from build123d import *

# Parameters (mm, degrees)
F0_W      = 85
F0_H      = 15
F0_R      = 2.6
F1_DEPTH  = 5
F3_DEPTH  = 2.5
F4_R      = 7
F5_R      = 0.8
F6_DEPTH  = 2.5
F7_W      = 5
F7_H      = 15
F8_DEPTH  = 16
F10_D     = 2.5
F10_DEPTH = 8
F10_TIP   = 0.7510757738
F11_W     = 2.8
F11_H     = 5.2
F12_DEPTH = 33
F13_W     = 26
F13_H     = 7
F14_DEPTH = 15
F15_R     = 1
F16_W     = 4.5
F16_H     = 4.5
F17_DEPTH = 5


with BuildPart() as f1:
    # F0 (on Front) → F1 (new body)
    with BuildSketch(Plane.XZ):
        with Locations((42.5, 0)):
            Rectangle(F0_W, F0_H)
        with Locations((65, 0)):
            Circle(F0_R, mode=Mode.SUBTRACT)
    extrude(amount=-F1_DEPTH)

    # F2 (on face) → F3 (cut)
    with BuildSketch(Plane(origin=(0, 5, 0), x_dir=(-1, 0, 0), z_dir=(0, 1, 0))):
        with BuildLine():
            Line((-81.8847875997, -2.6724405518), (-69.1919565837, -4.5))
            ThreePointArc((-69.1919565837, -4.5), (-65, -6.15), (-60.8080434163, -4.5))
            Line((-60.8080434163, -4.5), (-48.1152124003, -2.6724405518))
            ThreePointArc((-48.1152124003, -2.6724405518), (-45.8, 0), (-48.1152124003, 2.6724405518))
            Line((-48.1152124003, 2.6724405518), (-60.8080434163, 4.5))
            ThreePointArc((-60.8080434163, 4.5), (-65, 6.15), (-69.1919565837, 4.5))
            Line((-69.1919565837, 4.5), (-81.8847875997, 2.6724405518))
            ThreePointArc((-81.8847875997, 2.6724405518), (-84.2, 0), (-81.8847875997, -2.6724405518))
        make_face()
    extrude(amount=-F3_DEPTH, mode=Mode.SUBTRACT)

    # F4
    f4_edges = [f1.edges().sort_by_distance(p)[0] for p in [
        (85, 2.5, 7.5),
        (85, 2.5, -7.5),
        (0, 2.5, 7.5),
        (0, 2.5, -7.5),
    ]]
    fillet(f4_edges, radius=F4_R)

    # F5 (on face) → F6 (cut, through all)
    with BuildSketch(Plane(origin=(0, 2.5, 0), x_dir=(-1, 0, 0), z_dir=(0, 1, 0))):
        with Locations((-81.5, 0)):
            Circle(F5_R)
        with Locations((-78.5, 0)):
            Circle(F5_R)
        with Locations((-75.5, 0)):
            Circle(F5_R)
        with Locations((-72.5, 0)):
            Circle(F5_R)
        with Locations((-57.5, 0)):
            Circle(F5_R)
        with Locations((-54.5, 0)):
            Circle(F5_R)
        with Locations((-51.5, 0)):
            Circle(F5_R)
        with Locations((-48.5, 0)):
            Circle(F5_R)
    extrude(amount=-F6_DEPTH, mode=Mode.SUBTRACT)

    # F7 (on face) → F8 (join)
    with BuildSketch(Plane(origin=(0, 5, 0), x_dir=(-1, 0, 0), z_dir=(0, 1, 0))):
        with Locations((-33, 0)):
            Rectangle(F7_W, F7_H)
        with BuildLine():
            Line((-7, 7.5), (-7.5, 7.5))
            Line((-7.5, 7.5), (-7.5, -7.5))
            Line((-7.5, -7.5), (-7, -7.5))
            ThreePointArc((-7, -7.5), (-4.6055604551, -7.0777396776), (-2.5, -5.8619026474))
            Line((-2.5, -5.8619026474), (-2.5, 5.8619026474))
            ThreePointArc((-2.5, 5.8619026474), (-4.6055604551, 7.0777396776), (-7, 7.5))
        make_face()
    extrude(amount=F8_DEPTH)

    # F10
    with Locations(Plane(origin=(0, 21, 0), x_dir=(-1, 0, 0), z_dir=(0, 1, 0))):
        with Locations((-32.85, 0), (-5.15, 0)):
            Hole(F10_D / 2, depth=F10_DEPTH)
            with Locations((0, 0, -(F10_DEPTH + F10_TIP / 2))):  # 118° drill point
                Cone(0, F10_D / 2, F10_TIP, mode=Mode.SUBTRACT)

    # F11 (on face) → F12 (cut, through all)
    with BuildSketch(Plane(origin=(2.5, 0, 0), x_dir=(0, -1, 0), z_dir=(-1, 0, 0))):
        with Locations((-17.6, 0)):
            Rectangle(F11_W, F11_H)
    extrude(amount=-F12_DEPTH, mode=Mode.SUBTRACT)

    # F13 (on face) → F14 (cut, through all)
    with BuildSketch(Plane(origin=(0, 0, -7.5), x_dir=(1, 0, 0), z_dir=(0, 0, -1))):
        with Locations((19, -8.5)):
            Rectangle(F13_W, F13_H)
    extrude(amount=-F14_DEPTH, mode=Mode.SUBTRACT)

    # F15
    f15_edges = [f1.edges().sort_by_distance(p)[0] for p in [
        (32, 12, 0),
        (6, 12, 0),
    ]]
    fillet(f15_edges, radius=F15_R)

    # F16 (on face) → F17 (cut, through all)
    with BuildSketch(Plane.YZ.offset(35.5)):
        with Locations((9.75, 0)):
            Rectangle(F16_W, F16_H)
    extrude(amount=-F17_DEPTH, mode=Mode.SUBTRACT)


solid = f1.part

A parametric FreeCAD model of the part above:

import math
import FreeCAD as App
import Part
import Sketcher
from FreeCAD import Vector


def edges_at(feature, points):
    """Names of the edges that pass closest to the given points."""
    edges = feature.Shape.Edges
    near = lambda p: min(range(len(edges)), key=lambda i: edges[i].distToShape(Part.Vertex(*p))[0])
    return sorted({f"Edge{near(p) + 1}" for p in points})


def add_polygon(sketch, points):
    """Adds a closed chain of lines whose ends are joined by coincident constraints."""
    first, n = sketch.GeometryCount, len(points)
    for a, b in zip(points, points[1:] + points[:1]):
        sketch.addGeometry(Part.LineSegment(App.Vector(*a, 0), App.Vector(*b, 0)), False)
    for i in range(n):
        sketch.addConstraint(Sketcher.Constraint("Coincident", first + i, 2, first + (i + 1) % n, 1))

doc = App.newDocument("Part")
body = doc.addObject("PartDesign::Body", "Body")

sketch1 = body.newObject("Sketcher::SketchObject", "Sketch")
sketch1.AttachmentSupport = (doc.getObject("XZ_Plane"), [""])
sketch1.MapMode = "FlatFace"
add_polygon(sketch1, [(0, 7.5), (0, -7.5), (85, -7.5), (85, 7.5)])
sketch1.addGeometry(Part.Circle(Vector(65, 0, 0), Vector(0, 0, 1), 2.6), False)
sketch1.addConstraint([
    Sketcher.Constraint("Vertical", 0),
    Sketcher.Constraint("Horizontal", 1),
    Sketcher.Constraint("Vertical", 2),
    Sketcher.Constraint("Horizontal", 3),
    Sketcher.Constraint("Symmetric", 0, 2, 3, 2, -1, 1),
    Sketcher.Constraint("PointOnObject", 4, 3, -1),
    Sketcher.Constraint("Diameter", 4, 5.2),
    Sketcher.Constraint("DistanceX", 1, 1, 1, 2, 85.0),
    Sketcher.Constraint("DistanceY", 0, 2, 0, 1, 15.0),
    Sketcher.Constraint("DistanceX", -1, 1, 4, 3, 65.0),
])
pad1 = body.newObject("PartDesign::Pad", "Pad")
pad1.Profile = sketch1
pad1.Length = 5
pad1.Reversed = True

sketch2 = body.newObject("Sketcher::SketchObject", "Sketch001")
sketch2.AttachmentSupport = (doc.getObject("XZ_Plane"), [""])
sketch2.MapMode = "FlatFace"
sketch2.AttachmentOffset = App.Placement(Vector(0, 0, -5), App.Rotation())
sketch2.addGeometry([
    Part.LineSegment(Vector(81.884788, -2.672441, 0), Vector(69.191957, -4.5, 0)),
    Part.ArcOfCircle(Part.Circle(Vector(65, 0, 0), Vector(0, 0, 1), 6.15), math.radians(-132.970284), math.radians(-47.029716)),
    Part.LineSegment(Vector(60.808043, -4.5, 0), Vector(48.115212, -2.672441, 0)),
    Part.ArcOfCircle(Part.Circle(Vector(48.5, 0, 0), Vector(0, 0, 1), 2.7), math.radians(98.193343), math.radians(261.806657)),
    Part.LineSegment(Vector(48.115212, 2.672441, 0), Vector(60.808043, 4.5, 0)),
    Part.ArcOfCircle(Part.Circle(Vector(65, 0, 0), Vector(0, 0, 1), 6.15), math.radians(47.029716), math.radians(132.970284)),
    Part.LineSegment(Vector(69.191957, 4.5, 0), Vector(81.884788, 2.672441, 0)),
    Part.ArcOfCircle(Part.Circle(Vector(81.5, 0, 0), Vector(0, 0, 1), 2.7), math.radians(-81.806657), math.radians(81.806657)),
], False)
sketch2.addConstraint([
    Sketcher.Constraint("Coincident", 0, 2, 1, 2),
    Sketcher.Constraint("Coincident", 1, 1, 2, 1),
    Sketcher.Constraint("Tangent", 2, 2, 3, 2),
    Sketcher.Constraint("Tangent", 3, 1, 4, 1),
    Sketcher.Constraint("Coincident", 4, 2, 5, 2),
    Sketcher.Constraint("Coincident", 5, 1, 6, 1),
    Sketcher.Constraint("Tangent", 6, 2, 7, 2),
    Sketcher.Constraint("Tangent", 7, 1, 0, 1),
    Sketcher.Constraint("Coincident", 5, 3, 1, 3),
    Sketcher.Constraint("Equal", 1, 5),
    Sketcher.Constraint("Equal", 3, 7),
    Sketcher.Constraint("Symmetric", 2, 2, 3, 1, -1),
    Sketcher.Constraint("Symmetric", 0, 2, 5, 1, -1),
    Sketcher.Constraint("PointOnObject", 7, 3, -1),
    Sketcher.Constraint("Parallel", 0, 4),
    Sketcher.Constraint("Horizontal", 0, 2, 1, 1),
    Sketcher.Constraint("Radius", 3, 2.7),
    Sketcher.Constraint("Radius", 1, 6.15),
    Sketcher.Constraint("DistanceX", -1, 1, 1, 3, 65.0),
    Sketcher.Constraint("DistanceX", 3, 3, 7, 3, 33.0),
    Sketcher.Constraint("DistanceY", 1, 1, 4, 2, 9.0),
])
pocket1 = body.newObject("PartDesign::Pocket", "Pocket")
pocket1.Profile = sketch2
pocket1.Length = 2.5
pocket1.Reversed = True
doc.recompute()

fillet = body.newObject("PartDesign::Fillet", "Fillet")
fillet.Base = (pocket1, edges_at(pocket1, [
    (85, 2.5, 7.5),
    (85, 2.5, -7.5),
    (0, 2.5, 7.5),
    (0, 2.5, -7.5),
]))
fillet.Radius = 7

sketch3 = body.newObject("Sketcher::SketchObject", "Sketch002")
sketch3.AttachmentSupport = (doc.getObject("XZ_Plane"), [""])
sketch3.MapMode = "FlatFace"
sketch3.AttachmentOffset = App.Placement(Vector(0, 0, -2.5), App.Rotation())
sketch3.addGeometry([
    Part.Circle(Vector(81.5, 0, 0), Vector(0, 0, 1), 0.8),
    Part.Circle(Vector(78.5, 0, 0), Vector(0, 0, 1), 0.8),
    Part.Circle(Vector(75.5, 0, 0), Vector(0, 0, 1), 0.8),
    Part.Circle(Vector(72.5, 0, 0), Vector(0, 0, 1), 0.8),
    Part.Circle(Vector(57.5, 0, 0), Vector(0, 0, 1), 0.8),
    Part.Circle(Vector(54.5, 0, 0), Vector(0, 0, 1), 0.8),
    Part.Circle(Vector(51.5, 0, 0), Vector(0, 0, 1), 0.8),
    Part.Circle(Vector(48.5, 0, 0), Vector(0, 0, 1), 0.8),
], False)
sketch3.addConstraint([
    Sketcher.Constraint("Equal", 0, 1),
    Sketcher.Constraint("Equal", 1, 2),
    Sketcher.Constraint("Equal", 2, 3),
    Sketcher.Constraint("Equal", 3, 4),
    Sketcher.Constraint("Equal", 4, 5),
    Sketcher.Constraint("Equal", 5, 6),
    Sketcher.Constraint("Equal", 6, 7),
    Sketcher.Constraint("PointOnObject", 0, 3, -1),
    Sketcher.Constraint("PointOnObject", 1, 3, -1),
    Sketcher.Constraint("PointOnObject", 2, 3, -1),
    Sketcher.Constraint("PointOnObject", 3, 3, -1),
    Sketcher.Constraint("PointOnObject", 4, 3, -1),
    Sketcher.Constraint("PointOnObject", 5, 3, -1),
    Sketcher.Constraint("PointOnObject", 6, 3, -1),
    Sketcher.Constraint("PointOnObject", 7, 3, -1),
    Sketcher.Constraint("Diameter", 0, 1.6),
    Sketcher.Constraint("DistanceX", 1, 3, 0, 3, 3.0),
    Sketcher.Constraint("DistanceX", 2, 3, 1, 3, 3.0),
    Sketcher.Constraint("DistanceX", 3, 3, 2, 3, 3.0),
    Sketcher.Constraint("DistanceX", 4, 3, 3, 3, 15.0),
    Sketcher.Constraint("DistanceX", 5, 3, 4, 3, 3.0),
    Sketcher.Constraint("DistanceX", 6, 3, 5, 3, 3.0),
    Sketcher.Constraint("DistanceX", 7, 3, 6, 3, 3.0),
    Sketcher.Constraint("DistanceX", -1, 1, 0, 3, 81.5),
])
pocket2 = body.newObject("PartDesign::Pocket", "Pocket001")
pocket2.Profile = sketch3
pocket2.Type = "ThroughAll"
pocket2.Reversed = True

sketch4 = body.newObject("Sketcher::SketchObject", "Sketch003")
sketch4.AttachmentSupport = (doc.getObject("XZ_Plane"), [""])
sketch4.MapMode = "FlatFace"
sketch4.AttachmentOffset = App.Placement(Vector(0, 0, -5), App.Rotation())
add_polygon(sketch4, [(35.5, 7.5), (35.5, -7.5), (30.5, -7.5), (30.5, 7.5)])
sketch4.addGeometry(Part.LineSegment(Vector(7, 7.5, 0), Vector(7.5, 7.5, 0)), False)
sketch4.addGeometry(Part.LineSegment(Vector(7.5, 7.5, 0), Vector(7.5, -7.5, 0)), False)
sketch4.addGeometry(Part.LineSegment(Vector(7.5, -7.5, 0), Vector(7, -7.5, 0)), False)
sketch4.addGeometry(Part.ArcOfCircle(Part.Circle(Vector(7, -0.5, 0), Vector(0, 0, 1), 7), math.radians(-130.005201), math.radians(-90)), False)
sketch4.addGeometry(Part.LineSegment(Vector(2.5, -5.861903, 0), Vector(2.5, 5.861903, 0)), False)
sketch4.addGeometry(Part.ArcOfCircle(Part.Circle(Vector(7, 0.5, 0), Vector(0, 0, 1), 7), math.radians(90), math.radians(130.005201)), False)
sketch4.addConstraint([
    Sketcher.Constraint("Coincident", 4, 2, 5, 1),
    Sketcher.Constraint("Coincident", 5, 2, 6, 1),
    Sketcher.Constraint("Tangent", 6, 2, 7, 2),
    Sketcher.Constraint("Coincident", 7, 1, 8, 1),
    Sketcher.Constraint("Coincident", 8, 2, 9, 2),
    Sketcher.Constraint("Tangent", 9, 1, 4, 1),
    Sketcher.Constraint("Vertical", 0),
    Sketcher.Constraint("Horizontal", 1),
    Sketcher.Constraint("Vertical", 2),
    Sketcher.Constraint("Horizontal", 3),
    Sketcher.Constraint("Horizontal", 4),
    Sketcher.Constraint("Vertical", 5),
    Sketcher.Constraint("Horizontal", 6),
    Sketcher.Constraint("Vertical", 8),
    Sketcher.Constraint("Equal", 7, 9),
    Sketcher.Constraint("Symmetric", 7, 3, 9, 3, -1),
    Sketcher.Constraint("Horizontal", 3, 2, 4, 2),
    Sketcher.Constraint("Horizontal", 1, 2, 5, 2),
    Sketcher.Constraint("Radius", 7, 7.0),
    Sketcher.Constraint("DistanceX", 1, 2, 1, 1, 5.0),
    Sketcher.Constraint("DistanceY", 0, 2, 0, 1, 15.0),
    Sketcher.Constraint("DistanceX", 4, 1, 4, 2, 0.5),
    Sketcher.Constraint("DistanceX", -1, 1, 7, 3, 7.0),
    Sketcher.Constraint("DistanceX", 4, 2, 2, 2, 23.0),
    Sketcher.Constraint("DistanceX", 7, 1, 5, 2, 5.0),
])
pad2 = body.newObject("PartDesign::Pad", "Pad001")
pad2.Profile = sketch4
pad2.Length = 16
pad2.Reversed = True

sketch5 = body.newObject("Sketcher::SketchObject", "Sketch004")
sketch5.AttachmentSupport = (doc.getObject("XZ_Plane"), [""])
sketch5.MapMode = "FlatFace"
sketch5.AttachmentOffset = App.Placement(Vector(0, 0, -21), App.Rotation())
sketch5.addGeometry([
    Part.Circle(Vector(32.85, 0, 0), Vector(0, 0, 1), 1.25),
    Part.Circle(Vector(5.15, 0, 0), Vector(0, 0, 1), 1.25),
], False)
sketch5.addConstraint([
    Sketcher.Constraint("Equal", 0, 1),
    Sketcher.Constraint("PointOnObject", 0, 3, -1),
    Sketcher.Constraint("PointOnObject", 1, 3, -1),
    Sketcher.Constraint("Diameter", 0, 2.5),
    Sketcher.Constraint("DistanceX", 1, 3, 0, 3, 27.7),
    Sketcher.Constraint("DistanceX", -1, 1, 0, 3, 32.85),
])
doc.recompute()
hole = body.newObject("PartDesign::Hole", "Hole")
hole.Profile = sketch5
hole.ThreadType = "None"
hole.Diameter = 2.5
hole.DepthType = "Dimension"
hole.Depth = 8
hole.DrillPoint = "Angled"
hole.DrillPointAngle = 118
hole.Reversed = True

sketch6 = body.newObject("Sketcher::SketchObject", "Sketch005")
sketch6.AttachmentSupport = (doc.getObject("YZ_Plane"), [""])
sketch6.MapMode = "FlatFace"
sketch6.AttachmentOffset = App.Placement(Vector(0, 0, 2.5), App.Rotation())
add_polygon(sketch6, [(19, 2.6), (19, -2.6), (16.2, -2.6), (16.2, 2.6)])
sketch6.addConstraint([
    Sketcher.Constraint("Vertical", 0),
    Sketcher.Constraint("Horizontal", 1),
    Sketcher.Constraint("Vertical", 2),
    Sketcher.Constraint("Horizontal", 3),
    Sketcher.Constraint("DistanceX", 1, 2, 1, 1, 2.8),
    Sketcher.Constraint("DistanceY", 0, 2, 0, 1, 5.2),
    Sketcher.Constraint("DistanceX", -1, 1, 0, 2, 19.0),
    Sketcher.Constraint("DistanceY", 0, 2, -1, 1, 2.6),
])
pocket3 = body.newObject("PartDesign::Pocket", "Pocket002")
pocket3.Profile = sketch6
pocket3.Type = "ThroughAll"
pocket3.Reversed = True

sketch7 = body.newObject("Sketcher::SketchObject", "Sketch006")
sketch7.AttachmentSupport = (doc.getObject("XY_Plane"), [""])
sketch7.MapMode = "FlatFace"
sketch7.AttachmentOffset = App.Placement(Vector(0, 0, -7.5), App.Rotation())
add_polygon(sketch7, [(6, 5), (6, 12), (32, 12), (32, 5)])
sketch7.addConstraint([
    Sketcher.Constraint("Vertical", 0),
    Sketcher.Constraint("Horizontal", 1),
    Sketcher.Constraint("Vertical", 2),
    Sketcher.Constraint("Horizontal", 3),
    Sketcher.Constraint("DistanceX", 1, 1, 1, 2, 26.0),
    Sketcher.Constraint("DistanceY", 0, 1, 0, 2, 7.0),
    Sketcher.Constraint("DistanceX", -1, 1, 0, 2, 6.0),
    Sketcher.Constraint("DistanceY", -1, 1, 0, 2, 12.0),
])
pocket4 = body.newObject("PartDesign::Pocket", "Pocket003")
pocket4.Profile = sketch7
pocket4.Type = "ThroughAll"
pocket4.Reversed = True
doc.recompute()

fillet2 = body.newObject("PartDesign::Fillet", "Fillet001")
fillet2.Base = (pocket4, edges_at(pocket4, [(32, 12, 0), (6, 12, 0)]))
fillet2.Radius = 1

sketch8 = body.newObject("Sketcher::SketchObject", "Sketch007")
sketch8.AttachmentSupport = (doc.getObject("YZ_Plane"), [""])
sketch8.MapMode = "FlatFace"
sketch8.AttachmentOffset = App.Placement(Vector(0, 0, 35.5), App.Rotation())
add_polygon(sketch8, [(7.5, 2.25), (7.5, -2.25), (12, -2.25), (12, 2.25)])
sketch8.addConstraint([
    Sketcher.Constraint("Vertical", 0),
    Sketcher.Constraint("Horizontal", 1),
    Sketcher.Constraint("Vertical", 2),
    Sketcher.Constraint("Horizontal", 3),
    Sketcher.Constraint("Equal", 3, 0),
    Sketcher.Constraint("DistanceX", 1, 1, 1, 2, 4.5),
    Sketcher.Constraint("DistanceX", -1, 1, 1, 2, 12.0),
    Sketcher.Constraint("DistanceY", 0, 2, -1, 1, 2.25),
])
pocket5 = body.newObject("PartDesign::Pocket", "Pocket004")
pocket5.Profile = sketch8
pocket5.Length = 5

doc.recompute()
